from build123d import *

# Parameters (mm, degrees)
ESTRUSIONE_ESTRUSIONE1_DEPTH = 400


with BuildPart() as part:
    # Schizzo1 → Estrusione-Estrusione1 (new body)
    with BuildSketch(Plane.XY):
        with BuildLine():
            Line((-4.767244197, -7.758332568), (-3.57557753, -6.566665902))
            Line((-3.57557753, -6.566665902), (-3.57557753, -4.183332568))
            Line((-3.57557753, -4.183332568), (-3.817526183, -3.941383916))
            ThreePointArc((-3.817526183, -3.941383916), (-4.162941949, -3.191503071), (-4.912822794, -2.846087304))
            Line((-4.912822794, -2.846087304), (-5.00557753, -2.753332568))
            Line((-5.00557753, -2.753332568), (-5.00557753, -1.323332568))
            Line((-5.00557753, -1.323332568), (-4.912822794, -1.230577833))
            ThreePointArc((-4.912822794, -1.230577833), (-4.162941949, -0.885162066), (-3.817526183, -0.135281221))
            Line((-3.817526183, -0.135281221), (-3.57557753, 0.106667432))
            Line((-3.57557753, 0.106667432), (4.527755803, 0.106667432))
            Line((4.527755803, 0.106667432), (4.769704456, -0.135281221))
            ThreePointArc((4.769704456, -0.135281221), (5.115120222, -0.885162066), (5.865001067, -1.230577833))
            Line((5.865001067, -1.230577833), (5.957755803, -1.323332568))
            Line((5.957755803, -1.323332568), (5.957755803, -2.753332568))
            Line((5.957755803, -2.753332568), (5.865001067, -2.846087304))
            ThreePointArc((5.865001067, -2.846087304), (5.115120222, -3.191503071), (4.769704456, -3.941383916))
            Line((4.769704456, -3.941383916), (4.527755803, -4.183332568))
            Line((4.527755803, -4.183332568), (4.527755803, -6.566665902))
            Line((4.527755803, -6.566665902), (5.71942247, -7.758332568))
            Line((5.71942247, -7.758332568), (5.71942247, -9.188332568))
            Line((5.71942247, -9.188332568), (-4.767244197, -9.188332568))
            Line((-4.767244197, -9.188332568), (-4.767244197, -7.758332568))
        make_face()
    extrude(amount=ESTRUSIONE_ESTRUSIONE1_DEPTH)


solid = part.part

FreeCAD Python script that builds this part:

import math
import FreeCAD as App
import Part
import Sketcher
from FreeCAD import Vector
Q = App.Units.Quantity

doc = App.newDocument("Part")
body = doc.addObject("PartDesign::Body", "Body")

# Sketch on XY plane
sketch1 = body.newObject("Sketcher::SketchObject", "Sketch")
sketch1.AttachmentSupport = (doc.getObject("XY_Plane"), [""])
sketch1.MapMode = "FlatFace"
sketch1.addGeometry([
    Part.LineSegment(Vector(-3.58, -6.57, 0), Vector(-4.77, -7.76, 0)),  # 0
    Part.LineSegment(Vector(-4.77, -7.76, 0), Vector(-4.77, -9.19, 0)),  # 1
    Part.LineSegment(Vector(-4.77, -9.19, 0), Vector(5.72, -9.19, 0)),  # 2
    Part.LineSegment(Vector(5.72, -9.19, 0), Vector(5.72, -7.76, 0)),  # 3
    Part.LineSegment(Vector(5.72, -7.76, 0), Vector(4.53, -6.57, 0)),  # 4
    Part.LineSegment(Vector(4.53, -6.57, 0), Vector(4.53, -4.18, 0)),  # 5
    Part.LineSegment(Vector(4.53, -4.18, 0), Vector(4.77, -3.94, 0)),  # 6
    Part.ArcOfCircle(Part.Circle(Vector(5.96, -4.03, 0), Vector(0, 0, 1), 1.19), math.radians(94), math.radians(176)),  # 7
    Part.LineSegment(Vector(5.87, -2.85, 0), Vector(5.96, -2.75, 0)),  # 8
    Part.LineSegment(Vector(5.96, -2.75, 0), Vector(5.96, -1.32, 0)),  # 9
    Part.LineSegment(Vector(5.96, -1.32, 0), Vector(5.87, -1.23, 0)),  # 10
    Part.ArcOfCircle(Part.Circle(Vector(5.96, -0.04, 0), Vector(0, 0, 1), 1.19), math.radians(-176), math.radians(-94)),  # 11
    Part.LineSegment(Vector(4.77, -0.14, 0), Vector(4.53, 0.11, 0)),  # 12
    Part.LineSegment(Vector(4.53, 0.11, 0), Vector(-3.58, 0.11, 0)),  # 13
    Part.LineSegment(Vector(-3.58, 0.11, 0), Vector(-3.82, -0.14, 0)),  # 14
    Part.ArcOfCircle(Part.Circle(Vector(-5.01, -0.04, 0), Vector(0, 0, 1), 1.19), math.radians(-86), math.radians(-4)),  # 15
    Part.LineSegment(Vector(-4.91, -1.23, 0), Vector(-5.01, -1.32, 0)),  # 16
    Part.LineSegment(Vector(-5.01, -1.32, 0), Vector(-5.01, -2.75, 0)),  # 17
    Part.LineSegment(Vector(-5.01, -2.75, 0), Vector(-4.91, -2.85, 0)),  # 18
    Part.ArcOfCircle(Part.Circle(Vector(-5.01, -4.03, 0), Vector(0, 0, 1), 1.19), math.radians(4), math.radians(86)),  # 19
    Part.LineSegment(Vector(-3.82, -3.94, 0), Vector(-3.58, -4.18, 0)),  # 20
    Part.LineSegment(Vector(-3.58, -4.18, 0), Vector(-3.58, -6.57, 0)),  # 21
], False)
sketch1.addConstraint([
    Sketcher.Constraint("Coincident", 0, 2, 1, 1),
    Sketcher.Constraint("Coincident", 1, 2, 2, 1),
    Sketcher.Constraint("Coincident", 2, 2, 3, 1),
    Sketcher.Constraint("Coincident", 3, 2, 4, 1),
    Sketcher.Constraint("Coincident", 4, 2, 5, 1),
    Sketcher.Constraint("Coincident", 5, 2, 6, 1),
    Sketcher.Constraint("Coincident", 6, 2, 7, 2),
    Sketcher.Constraint("Coincident", 7, 1, 8, 1),
    Sketcher.Constraint("Coincident", 8, 2, 9, 1),
    Sketcher.Constraint("Coincident", 9, 2, 10, 1),
    Sketcher.Constraint("Coincident", 10, 2, 11, 2),
    Sketcher.Constraint("Coincident", 11, 1, 12, 1),
    Sketcher.Constraint("Coincident", 12, 2, 13, 1),
    Sketcher.Constraint("Coincident", 13, 2, 14, 1),
    Sketcher.Constraint("Coincident", 14, 2, 15, 2),
    Sketcher.Constraint("Coincident", 15, 1, 16, 1),
    Sketcher.Constraint("Coincident", 16, 2, 17, 1),
    Sketcher.Constraint("Coincident", 17, 2, 18, 1),
    Sketcher.Constraint("Coincident", 18, 2, 19, 2),
    Sketcher.Constraint("Coincident", 19, 1, 20, 1),
    Sketcher.Constraint("Coincident", 20, 2, 21, 1),
    Sketcher.Constraint("Coincident", 21, 2, 0, 1),
    Sketcher.Constraint("Vertical", 1),
    Sketcher.Constraint("Horizontal", 2),
    Sketcher.Constraint("Vertical", 3),
    Sketcher.Constraint("Vertical", 5),
    Sketcher.Constraint("Vertical", 9),
    Sketcher.Constraint("Horizontal", 13),
    Sketcher.Constraint("Vertical", 17),
    Sketcher.Constraint("Vertical", 21),
    Sketcher.Constraint("Equal", 7, 11),
    Sketcher.Constraint("Equal", 11, 15),
    Sketcher.Constraint("Equal", 15, 19),
    Sketcher.Constraint("Perpendicular", 0, 4),
    Sketcher.Constraint("Perpendicular", 4, 6),
    Sketcher.Constraint("Parallel", 6, 8),
    Sketcher.Constraint("Perpendicular", 8, 10),
    Sketcher.Constraint("Parallel", 10, 12),
    Sketcher.Constraint("Perpendicular", 12, 14),
    Sketcher.Constraint("Parallel", 14, 16),
    Sketcher.Constraint("Perpendicular", 16, 18),
    Sketcher.Constraint("Parallel", 18, 20),
    Sketcher.Constraint("Horizontal", 11, 3, 15, 3),
    Sketcher.Constraint("Horizontal", 7, 3, 19, 3),
    Sketcher.Constraint("Horizontal", 0, 2, 3, 2),
    Sketcher.Constraint("Horizontal", 11, 1, 14, 2),
    Sketcher.Constraint("Horizontal", 10, 2, 15, 1),
    Sketcher.Constraint("Horizontal", 9, 2, 16, 2),
    Sketcher.Constraint("Horizontal", 8, 2, 17, 2),
    Sketcher.Constraint("Horizontal", 7, 1, 18, 2),
    Sketcher.Constraint("Horizontal", 6, 2, 19, 1),
    Sketcher.Constraint("Horizontal", 5, 2, 20, 2),
    Sketcher.Constraint("Horizontal", 4, 2, 21, 2),
    Sketcher.Constraint("Vertical", 7, 3, 11, 3),
    Sketcher.Constraint("Vertical", 15, 3, 19, 3),
    Sketcher.Constraint("Vertical", 11, 3, 8, 2),
    Sketcher.Constraint("Vertical", 7, 1, 10, 2),
    Sketcher.Constraint("Vertical", 6, 2, 11, 1),
    Sketcher.Constraint("Vertical", 5, 2, 12, 2),
    Sketcher.Constraint("Equal", 3, 9),
    Sketcher.Constraint("DistanceY", 1, 2, 1, 1, Q("1.43 mm")),
    Sketcher.Constraint("DistanceX", 4, 2, 7, 3, Q("1.43 mm")),
    Sketcher.Constraint("DistanceY", 5, 2, 8, 2, Q("1.43 mm")),
    Sketcher.Constraint("DistanceX", -1, 1, 7, 1, Q("5.865001 mm")),
    Sketcher.Constraint("Radius", 7, Q("1.191667 mm")),
    Sketcher.Constraint("DistanceX", 0, 2, 7, 3, Q("10.725 mm")),
    Sketcher.Constraint("DistanceY", 3, 2, 5, 2, Q("3.575 mm")),
    Sketcher.Constraint("Distance", 0, Q("1.685271 mm")),
    Sketcher.Constraint("DistanceY", 7, 3, -1, 1, Q("4.034139 mm")),
    Sketcher.Constraint("DistanceY", 11, 1, -1, 1, Q("0.135281 mm")),
])
pad1 = body.newObject("PartDesign::Pad", "Pad")
pad1.Profile = sketch1
pad1.Length = 400

doc.recompute()
